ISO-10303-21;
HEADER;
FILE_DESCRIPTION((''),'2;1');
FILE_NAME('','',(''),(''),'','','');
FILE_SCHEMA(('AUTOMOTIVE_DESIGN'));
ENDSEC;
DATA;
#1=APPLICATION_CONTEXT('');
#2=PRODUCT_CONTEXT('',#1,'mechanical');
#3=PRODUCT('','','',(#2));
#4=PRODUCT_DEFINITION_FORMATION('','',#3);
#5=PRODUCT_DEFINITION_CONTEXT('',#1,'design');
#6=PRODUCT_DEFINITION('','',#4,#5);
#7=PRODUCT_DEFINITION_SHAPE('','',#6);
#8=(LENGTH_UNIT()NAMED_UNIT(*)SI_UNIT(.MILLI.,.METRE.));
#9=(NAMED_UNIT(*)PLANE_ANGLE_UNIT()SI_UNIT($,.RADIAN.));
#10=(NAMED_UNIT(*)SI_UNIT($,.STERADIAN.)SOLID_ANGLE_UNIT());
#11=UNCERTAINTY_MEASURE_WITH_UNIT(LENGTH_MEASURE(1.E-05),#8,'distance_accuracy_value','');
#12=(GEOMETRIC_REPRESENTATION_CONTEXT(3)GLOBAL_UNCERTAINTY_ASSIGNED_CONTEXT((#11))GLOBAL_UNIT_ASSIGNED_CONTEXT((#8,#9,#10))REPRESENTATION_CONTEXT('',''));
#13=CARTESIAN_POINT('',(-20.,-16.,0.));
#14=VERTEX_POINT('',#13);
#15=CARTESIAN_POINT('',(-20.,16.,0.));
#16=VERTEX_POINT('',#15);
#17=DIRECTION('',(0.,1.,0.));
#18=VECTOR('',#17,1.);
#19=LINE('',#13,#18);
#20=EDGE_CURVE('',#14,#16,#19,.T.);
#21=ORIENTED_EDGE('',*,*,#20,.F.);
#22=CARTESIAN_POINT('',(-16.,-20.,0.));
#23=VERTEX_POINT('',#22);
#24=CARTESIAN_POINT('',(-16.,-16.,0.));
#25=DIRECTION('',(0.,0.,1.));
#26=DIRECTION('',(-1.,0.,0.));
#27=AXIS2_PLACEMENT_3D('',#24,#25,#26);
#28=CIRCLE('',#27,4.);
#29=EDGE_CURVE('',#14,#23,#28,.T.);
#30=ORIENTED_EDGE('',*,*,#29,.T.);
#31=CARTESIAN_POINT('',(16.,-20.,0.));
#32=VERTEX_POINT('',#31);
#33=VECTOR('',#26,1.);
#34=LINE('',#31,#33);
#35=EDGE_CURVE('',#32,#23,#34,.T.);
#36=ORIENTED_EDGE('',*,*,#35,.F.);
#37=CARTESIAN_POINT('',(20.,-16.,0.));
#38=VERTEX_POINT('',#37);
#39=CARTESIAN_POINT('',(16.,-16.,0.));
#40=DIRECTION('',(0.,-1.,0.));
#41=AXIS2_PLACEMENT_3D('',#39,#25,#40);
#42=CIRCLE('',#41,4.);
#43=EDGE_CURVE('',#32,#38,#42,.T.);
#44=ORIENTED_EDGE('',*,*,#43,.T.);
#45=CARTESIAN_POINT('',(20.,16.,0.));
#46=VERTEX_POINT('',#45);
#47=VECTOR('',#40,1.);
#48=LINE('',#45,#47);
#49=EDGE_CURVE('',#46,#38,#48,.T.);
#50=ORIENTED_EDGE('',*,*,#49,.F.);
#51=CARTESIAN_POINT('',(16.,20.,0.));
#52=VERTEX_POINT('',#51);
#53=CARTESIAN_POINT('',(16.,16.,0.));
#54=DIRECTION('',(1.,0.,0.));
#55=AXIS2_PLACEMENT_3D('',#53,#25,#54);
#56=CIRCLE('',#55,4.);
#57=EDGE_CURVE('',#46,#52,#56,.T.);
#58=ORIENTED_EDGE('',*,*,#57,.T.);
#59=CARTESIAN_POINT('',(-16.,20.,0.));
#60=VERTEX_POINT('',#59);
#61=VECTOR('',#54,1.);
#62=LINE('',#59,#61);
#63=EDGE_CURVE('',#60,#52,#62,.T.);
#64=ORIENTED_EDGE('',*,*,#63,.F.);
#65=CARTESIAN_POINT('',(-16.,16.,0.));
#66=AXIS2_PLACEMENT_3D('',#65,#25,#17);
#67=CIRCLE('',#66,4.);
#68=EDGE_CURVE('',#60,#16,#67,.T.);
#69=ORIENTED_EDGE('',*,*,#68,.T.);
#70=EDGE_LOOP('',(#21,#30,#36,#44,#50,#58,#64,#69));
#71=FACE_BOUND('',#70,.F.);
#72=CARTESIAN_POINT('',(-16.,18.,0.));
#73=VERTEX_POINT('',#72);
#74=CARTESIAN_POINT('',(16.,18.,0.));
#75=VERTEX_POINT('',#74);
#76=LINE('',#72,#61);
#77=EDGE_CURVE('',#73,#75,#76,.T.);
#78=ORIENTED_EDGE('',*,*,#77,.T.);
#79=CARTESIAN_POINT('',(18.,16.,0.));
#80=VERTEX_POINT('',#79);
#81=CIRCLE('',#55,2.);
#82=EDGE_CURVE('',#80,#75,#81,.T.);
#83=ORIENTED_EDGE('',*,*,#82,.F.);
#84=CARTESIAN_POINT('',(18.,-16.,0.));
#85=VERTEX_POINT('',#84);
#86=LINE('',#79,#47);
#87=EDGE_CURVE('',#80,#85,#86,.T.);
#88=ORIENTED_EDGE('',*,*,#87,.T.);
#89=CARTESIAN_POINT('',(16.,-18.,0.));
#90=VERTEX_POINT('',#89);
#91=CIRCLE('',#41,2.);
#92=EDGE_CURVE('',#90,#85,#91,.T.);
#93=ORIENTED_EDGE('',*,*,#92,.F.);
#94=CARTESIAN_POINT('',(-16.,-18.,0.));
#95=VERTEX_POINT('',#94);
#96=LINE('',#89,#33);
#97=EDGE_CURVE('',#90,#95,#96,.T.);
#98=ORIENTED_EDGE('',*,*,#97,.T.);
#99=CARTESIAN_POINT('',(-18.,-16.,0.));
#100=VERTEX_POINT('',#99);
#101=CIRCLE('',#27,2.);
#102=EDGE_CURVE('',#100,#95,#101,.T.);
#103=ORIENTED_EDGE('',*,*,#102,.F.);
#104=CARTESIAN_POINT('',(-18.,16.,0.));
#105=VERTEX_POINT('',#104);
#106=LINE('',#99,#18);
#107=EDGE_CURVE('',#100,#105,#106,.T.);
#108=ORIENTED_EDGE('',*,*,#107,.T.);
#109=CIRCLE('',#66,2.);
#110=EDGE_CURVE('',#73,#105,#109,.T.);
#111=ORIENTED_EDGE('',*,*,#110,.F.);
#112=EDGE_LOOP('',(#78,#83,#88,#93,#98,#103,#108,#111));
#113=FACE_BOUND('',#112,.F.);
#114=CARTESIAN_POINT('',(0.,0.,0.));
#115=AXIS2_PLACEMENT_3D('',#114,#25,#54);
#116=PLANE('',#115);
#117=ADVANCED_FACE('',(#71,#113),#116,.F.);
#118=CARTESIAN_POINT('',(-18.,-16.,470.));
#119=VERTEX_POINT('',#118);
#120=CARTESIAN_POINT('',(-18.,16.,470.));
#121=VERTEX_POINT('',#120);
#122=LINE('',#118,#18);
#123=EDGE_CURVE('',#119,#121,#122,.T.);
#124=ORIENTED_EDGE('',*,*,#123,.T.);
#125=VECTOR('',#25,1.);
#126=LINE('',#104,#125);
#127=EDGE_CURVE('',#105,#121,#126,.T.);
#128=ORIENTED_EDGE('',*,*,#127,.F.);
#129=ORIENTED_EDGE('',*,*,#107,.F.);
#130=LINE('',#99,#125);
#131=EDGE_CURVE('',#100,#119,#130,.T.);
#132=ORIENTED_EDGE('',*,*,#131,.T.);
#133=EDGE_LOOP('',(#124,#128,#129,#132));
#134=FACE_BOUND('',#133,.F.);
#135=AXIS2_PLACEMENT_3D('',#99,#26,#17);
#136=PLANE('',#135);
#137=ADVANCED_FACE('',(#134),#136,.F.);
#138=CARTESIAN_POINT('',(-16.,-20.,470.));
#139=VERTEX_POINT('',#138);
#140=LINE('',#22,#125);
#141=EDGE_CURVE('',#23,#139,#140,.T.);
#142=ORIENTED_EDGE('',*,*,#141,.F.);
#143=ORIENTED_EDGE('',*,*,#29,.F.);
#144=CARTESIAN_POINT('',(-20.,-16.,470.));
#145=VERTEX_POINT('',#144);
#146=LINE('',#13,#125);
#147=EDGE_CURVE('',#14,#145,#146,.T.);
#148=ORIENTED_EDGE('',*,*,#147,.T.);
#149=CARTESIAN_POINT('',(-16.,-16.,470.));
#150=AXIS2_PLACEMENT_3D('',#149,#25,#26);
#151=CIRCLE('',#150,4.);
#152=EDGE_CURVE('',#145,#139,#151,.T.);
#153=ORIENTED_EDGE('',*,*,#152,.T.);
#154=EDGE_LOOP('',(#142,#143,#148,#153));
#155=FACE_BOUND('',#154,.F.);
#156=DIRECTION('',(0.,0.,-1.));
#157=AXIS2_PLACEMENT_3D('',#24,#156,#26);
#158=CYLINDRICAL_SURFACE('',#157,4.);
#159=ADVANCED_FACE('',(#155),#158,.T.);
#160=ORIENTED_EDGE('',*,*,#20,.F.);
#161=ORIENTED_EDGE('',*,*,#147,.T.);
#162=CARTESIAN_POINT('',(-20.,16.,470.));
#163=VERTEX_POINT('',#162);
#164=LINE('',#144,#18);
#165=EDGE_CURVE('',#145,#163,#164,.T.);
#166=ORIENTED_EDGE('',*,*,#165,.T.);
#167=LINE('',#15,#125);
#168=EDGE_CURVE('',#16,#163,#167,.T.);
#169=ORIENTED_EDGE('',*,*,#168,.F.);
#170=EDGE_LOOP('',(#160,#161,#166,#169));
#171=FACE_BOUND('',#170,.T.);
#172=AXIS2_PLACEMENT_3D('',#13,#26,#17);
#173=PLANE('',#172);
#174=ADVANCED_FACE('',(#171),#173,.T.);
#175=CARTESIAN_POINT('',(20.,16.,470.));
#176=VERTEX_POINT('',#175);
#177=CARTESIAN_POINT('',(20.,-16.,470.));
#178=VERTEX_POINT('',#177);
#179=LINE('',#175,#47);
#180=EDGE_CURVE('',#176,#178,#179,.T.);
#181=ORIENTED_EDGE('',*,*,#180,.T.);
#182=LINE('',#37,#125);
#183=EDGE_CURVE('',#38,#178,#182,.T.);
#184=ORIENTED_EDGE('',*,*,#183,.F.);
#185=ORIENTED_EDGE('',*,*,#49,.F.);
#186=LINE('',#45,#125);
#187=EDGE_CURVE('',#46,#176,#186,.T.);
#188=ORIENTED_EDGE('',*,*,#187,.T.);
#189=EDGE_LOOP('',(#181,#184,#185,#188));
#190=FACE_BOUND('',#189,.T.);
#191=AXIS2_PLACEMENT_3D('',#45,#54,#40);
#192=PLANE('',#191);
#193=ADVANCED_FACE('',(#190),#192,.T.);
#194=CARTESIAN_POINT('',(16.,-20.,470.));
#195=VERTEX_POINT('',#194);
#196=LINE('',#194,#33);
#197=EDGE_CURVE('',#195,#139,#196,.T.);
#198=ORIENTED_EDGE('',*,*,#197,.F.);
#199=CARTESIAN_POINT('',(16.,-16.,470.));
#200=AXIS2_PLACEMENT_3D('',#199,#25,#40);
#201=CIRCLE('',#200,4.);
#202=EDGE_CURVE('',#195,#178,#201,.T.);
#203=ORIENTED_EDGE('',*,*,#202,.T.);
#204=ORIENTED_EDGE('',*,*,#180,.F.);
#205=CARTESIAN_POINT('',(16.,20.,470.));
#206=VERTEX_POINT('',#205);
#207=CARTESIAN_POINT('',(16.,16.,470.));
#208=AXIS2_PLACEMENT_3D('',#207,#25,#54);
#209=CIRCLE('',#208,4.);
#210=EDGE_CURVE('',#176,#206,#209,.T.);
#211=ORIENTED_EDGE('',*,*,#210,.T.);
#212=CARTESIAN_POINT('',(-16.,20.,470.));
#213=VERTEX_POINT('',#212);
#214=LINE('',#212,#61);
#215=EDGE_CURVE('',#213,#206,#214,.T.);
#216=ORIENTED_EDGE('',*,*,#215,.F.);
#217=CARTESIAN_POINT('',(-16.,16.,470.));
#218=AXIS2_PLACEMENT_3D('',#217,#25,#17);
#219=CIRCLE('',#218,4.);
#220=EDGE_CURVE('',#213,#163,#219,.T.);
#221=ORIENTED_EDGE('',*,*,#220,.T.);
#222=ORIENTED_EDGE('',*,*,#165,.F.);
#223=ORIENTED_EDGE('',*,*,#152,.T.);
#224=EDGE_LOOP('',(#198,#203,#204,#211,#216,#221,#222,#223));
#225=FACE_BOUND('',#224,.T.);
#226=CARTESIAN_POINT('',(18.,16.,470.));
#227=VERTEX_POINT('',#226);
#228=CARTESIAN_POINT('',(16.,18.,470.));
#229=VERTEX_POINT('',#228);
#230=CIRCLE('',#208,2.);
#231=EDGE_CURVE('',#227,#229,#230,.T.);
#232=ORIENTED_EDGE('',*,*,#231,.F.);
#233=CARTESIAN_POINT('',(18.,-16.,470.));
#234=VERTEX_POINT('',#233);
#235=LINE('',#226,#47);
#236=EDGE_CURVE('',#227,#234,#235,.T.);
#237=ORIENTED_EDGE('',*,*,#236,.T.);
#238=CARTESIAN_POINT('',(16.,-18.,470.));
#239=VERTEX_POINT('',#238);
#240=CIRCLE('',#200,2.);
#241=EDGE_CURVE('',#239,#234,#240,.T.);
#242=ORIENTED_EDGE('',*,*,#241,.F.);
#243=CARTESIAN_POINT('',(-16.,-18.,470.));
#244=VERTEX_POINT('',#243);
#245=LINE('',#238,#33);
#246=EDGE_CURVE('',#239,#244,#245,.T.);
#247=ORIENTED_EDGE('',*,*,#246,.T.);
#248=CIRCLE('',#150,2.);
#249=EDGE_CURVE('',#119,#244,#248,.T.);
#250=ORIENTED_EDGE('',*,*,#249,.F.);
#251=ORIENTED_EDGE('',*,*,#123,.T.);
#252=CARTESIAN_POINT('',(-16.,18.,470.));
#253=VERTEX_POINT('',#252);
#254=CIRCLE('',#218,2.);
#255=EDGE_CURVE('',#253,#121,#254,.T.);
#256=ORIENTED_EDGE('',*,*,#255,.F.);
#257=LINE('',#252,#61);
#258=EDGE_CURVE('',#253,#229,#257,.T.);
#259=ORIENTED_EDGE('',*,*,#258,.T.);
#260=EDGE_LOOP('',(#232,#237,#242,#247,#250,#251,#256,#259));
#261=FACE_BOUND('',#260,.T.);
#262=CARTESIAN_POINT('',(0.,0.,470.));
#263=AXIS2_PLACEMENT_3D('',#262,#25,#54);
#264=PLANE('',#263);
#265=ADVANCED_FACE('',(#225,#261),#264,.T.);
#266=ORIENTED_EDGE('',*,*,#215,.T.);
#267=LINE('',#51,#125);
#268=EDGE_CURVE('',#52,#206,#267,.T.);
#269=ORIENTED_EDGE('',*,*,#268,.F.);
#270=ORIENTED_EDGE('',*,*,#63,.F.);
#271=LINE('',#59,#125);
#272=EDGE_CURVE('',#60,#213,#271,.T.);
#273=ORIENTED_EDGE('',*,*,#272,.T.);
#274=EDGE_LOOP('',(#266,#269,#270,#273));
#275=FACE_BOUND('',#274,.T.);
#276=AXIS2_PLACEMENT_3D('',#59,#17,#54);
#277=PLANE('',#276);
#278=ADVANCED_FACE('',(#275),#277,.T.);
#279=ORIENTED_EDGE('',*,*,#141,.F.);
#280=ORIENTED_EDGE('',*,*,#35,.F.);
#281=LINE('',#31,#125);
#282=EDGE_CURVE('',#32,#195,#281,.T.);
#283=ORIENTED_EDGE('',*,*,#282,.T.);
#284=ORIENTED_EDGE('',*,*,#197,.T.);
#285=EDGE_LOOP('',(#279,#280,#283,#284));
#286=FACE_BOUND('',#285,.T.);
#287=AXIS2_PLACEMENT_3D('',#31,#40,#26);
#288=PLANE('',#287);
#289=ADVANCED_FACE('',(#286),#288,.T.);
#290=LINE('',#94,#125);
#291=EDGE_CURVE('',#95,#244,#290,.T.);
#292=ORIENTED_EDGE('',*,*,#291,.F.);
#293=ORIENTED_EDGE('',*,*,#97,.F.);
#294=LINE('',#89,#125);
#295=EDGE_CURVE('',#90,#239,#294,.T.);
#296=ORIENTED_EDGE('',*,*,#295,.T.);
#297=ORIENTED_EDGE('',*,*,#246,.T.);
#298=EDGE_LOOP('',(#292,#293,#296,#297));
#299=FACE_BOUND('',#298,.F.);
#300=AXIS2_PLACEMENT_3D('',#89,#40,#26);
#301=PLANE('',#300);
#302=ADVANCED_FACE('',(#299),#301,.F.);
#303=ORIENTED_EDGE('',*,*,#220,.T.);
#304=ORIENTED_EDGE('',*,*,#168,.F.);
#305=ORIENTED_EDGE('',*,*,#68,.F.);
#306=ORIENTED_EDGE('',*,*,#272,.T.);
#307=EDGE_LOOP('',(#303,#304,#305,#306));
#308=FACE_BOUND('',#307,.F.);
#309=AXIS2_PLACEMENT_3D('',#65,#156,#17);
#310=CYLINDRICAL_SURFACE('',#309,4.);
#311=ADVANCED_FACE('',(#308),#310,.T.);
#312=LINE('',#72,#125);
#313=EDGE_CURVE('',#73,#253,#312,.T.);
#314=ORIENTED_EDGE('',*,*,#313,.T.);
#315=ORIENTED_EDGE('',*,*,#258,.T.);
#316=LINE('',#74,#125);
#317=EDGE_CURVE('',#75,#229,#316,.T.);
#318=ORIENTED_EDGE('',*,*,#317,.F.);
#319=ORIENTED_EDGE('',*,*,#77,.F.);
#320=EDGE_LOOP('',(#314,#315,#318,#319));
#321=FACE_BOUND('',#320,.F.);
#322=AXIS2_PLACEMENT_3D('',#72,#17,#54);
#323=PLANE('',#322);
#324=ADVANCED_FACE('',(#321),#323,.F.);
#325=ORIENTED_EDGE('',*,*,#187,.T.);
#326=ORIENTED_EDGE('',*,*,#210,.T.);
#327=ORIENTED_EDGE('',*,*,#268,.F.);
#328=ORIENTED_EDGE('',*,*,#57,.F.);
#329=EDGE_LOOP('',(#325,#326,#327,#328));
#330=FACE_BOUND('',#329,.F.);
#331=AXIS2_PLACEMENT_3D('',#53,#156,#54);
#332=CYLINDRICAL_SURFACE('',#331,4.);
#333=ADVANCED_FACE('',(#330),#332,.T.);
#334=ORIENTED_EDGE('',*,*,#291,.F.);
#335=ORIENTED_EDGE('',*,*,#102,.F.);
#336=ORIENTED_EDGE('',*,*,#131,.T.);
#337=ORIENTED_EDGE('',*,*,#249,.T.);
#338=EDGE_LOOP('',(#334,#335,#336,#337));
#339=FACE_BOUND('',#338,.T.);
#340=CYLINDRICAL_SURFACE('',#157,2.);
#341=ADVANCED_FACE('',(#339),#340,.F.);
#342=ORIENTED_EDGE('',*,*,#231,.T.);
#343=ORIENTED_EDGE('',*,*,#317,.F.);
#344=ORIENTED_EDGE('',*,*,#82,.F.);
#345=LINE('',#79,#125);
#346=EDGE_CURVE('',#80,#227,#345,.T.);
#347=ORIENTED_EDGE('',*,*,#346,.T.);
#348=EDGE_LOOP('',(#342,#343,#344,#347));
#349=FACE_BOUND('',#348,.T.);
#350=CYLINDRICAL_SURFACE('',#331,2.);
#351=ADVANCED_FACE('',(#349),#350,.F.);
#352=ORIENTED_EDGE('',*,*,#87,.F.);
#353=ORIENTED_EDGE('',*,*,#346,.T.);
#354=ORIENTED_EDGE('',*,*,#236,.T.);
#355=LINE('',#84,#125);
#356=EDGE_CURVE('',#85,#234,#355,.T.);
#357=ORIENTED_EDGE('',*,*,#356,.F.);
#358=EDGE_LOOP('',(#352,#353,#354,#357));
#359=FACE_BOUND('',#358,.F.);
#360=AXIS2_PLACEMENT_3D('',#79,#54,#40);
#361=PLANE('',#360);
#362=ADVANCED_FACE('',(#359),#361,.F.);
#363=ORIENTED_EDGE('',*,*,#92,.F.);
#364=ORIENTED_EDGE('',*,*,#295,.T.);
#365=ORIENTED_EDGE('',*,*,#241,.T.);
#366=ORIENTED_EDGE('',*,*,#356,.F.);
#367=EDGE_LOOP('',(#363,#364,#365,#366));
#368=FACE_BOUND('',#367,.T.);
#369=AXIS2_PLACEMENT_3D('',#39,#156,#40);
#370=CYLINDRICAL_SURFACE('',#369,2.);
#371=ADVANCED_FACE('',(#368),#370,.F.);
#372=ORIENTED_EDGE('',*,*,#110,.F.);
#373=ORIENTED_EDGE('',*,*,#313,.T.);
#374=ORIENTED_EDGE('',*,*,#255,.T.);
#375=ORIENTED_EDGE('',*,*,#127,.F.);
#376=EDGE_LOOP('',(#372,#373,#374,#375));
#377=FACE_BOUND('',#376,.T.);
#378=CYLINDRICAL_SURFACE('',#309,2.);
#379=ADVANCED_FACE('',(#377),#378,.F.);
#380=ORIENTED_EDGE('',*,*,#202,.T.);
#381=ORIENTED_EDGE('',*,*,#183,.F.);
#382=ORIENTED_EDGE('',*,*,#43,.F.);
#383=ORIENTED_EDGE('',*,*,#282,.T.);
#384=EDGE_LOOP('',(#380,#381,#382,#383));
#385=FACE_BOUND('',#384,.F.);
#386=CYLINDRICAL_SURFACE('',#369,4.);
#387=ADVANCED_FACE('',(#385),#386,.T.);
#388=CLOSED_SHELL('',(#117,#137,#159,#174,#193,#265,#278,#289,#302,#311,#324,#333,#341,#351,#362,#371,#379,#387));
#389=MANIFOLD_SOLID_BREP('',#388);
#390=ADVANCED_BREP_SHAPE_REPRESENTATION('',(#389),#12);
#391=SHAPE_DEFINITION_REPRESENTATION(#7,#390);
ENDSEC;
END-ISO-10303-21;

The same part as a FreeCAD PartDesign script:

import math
import FreeCAD as App
import Part
import Sketcher
from FreeCAD import Vector
Q = App.Units.Quantity

doc = App.newDocument("Part")
body = doc.addObject("PartDesign::Body", "Body")

sketch1 = body.newObject("Sketcher::SketchObject", "Sketch")
sketch1.AttachmentSupport = (doc.getObject("XY_Plane"), [""])
sketch1.MapMode = "FlatFace"
sketch1.addGeometry([
    Part.LineSegment(Vector(-20, 16, 0), Vector(-20, -16, 0)),
    Part.ArcOfCircle(Part.Circle(Vector(-16, -16, 0), Vector(0, 0, 1), 4), math.radians(180), math.radians(270)),
    Part.LineSegment(Vector(-16, -20, 0), Vector(16, -20, 0)),
    Part.ArcOfCircle(Part.Circle(Vector(16, -16, 0), Vector(0, 0, 1), 4), math.radians(-90), math.radians(0)),
    Part.LineSegment(Vector(20, -16, 0), Vector(20, 16, 0)),
    Part.ArcOfCircle(Part.Circle(Vector(16, 16, 0), Vector(0, 0, 1), 4), math.radians(0), math.radians(90)),
    Part.LineSegment(Vector(16, 20, 0), Vector(-16, 20, 0)),
    Part.ArcOfCircle(Part.Circle(Vector(-16, 16, 0), Vector(0, 0, 1), 4), math.radians(90), math.radians(180)),
    Part.ArcOfCircle(Part.Circle(Vector(-16, 16, 0), Vector(0, 0, 1), 2), math.radians(90), math.radians(180)),
    Part.LineSegment(Vector(-16, 18, 0), Vector(16, 18, 0)),
    Part.ArcOfCircle(Part.Circle(Vector(16, 16, 0), Vector(0, 0, 1), 2), math.radians(0), math.radians(90)),
    Part.LineSegment(Vector(18, 16, 0), Vector(18, -16, 0)),
    Part.ArcOfCircle(Part.Circle(Vector(16, -16, 0), Vector(0, 0, 1), 2), math.radians(-90), math.radians(0)),
    Part.LineSegment(Vector(16, -18, 0), Vector(-16, -18, 0)),
    Part.ArcOfCircle(Part.Circle(Vector(-16, -16, 0), Vector(0, 0, 1), 2), math.radians(180), math.radians(270)),
    Part.LineSegment(Vector(-18, -16, 0), Vector(-18, 16, 0)),
], False)
sketch1.addConstraint([
    Sketcher.Constraint("Tangent", 0, 2, 1, 1),
    Sketcher.Constraint("Tangent", 1, 2, 2, 1),
    Sketcher.Constraint("Tangent", 2, 2, 3, 1),
    Sketcher.Constraint("Tangent", 3, 2, 4, 1),
    Sketcher.Constraint("Tangent", 4, 2, 5, 1),
    Sketcher.Constraint("Tangent", 5, 2, 6, 1),
    Sketcher.Constraint("Tangent", 6, 2, 7, 1),
    Sketcher.Constraint("Tangent", 7, 2, 0, 1),
    Sketcher.Constraint("Tangent", 8, 1, 9, 1),
    Sketcher.Constraint("Tangent", 9, 2, 10, 2),
    Sketcher.Constraint("Tangent", 10, 1, 11, 1),
    Sketcher.Constraint("Tangent", 11, 2, 12, 2),
    Sketcher.Constraint("Tangent", 12, 1, 13, 1),
    Sketcher.Constraint("Tangent", 13, 2, 14, 2),
    Sketcher.Constraint("Tangent", 14, 1, 15, 1),
    Sketcher.Constraint("Tangent", 15, 2, 8, 2),
    Sketcher.Constraint("Vertical", 0),
    Sketcher.Constraint("Horizontal", 2),
    Sketcher.Constraint("Vertical", 4),
    Sketcher.Constraint("Horizontal", 6),
    Sketcher.Constraint("Horizontal", 9),
    Sketcher.Constraint("Vertical", 11),
    Sketcher.Constraint("Horizontal", 13),
    Sketcher.Constraint("Vertical", 15),
    Sketcher.Constraint("Coincident", 8, 3, 7, 3),
    Sketcher.Constraint("Coincident", 10, 3, 5, 3),
    Sketcher.Constraint("Coincident", 12, 3, 3, 3),
    Sketcher.Constraint("Equal", 1, 3),
    Sketcher.Constraint("Equal", 3, 5),
    Sketcher.Constraint("Equal", 5, 7),
    Sketcher.Constraint("Equal", 12, 14),
    Sketcher.Constraint("Symmetric", 1, 3, 5, 3, -1, 1),
    Sketcher.Constraint("Equal", 13, 0),
    Sketcher.Constraint("Radius", 1, Q("4 mm")),
    Sketcher.Constraint("Radius", 8, Q("2 mm")),
    Sketcher.Constraint("DistanceX", 0, 2, -1, 1, Q("20 mm")),
])
pad1 = body.newObject("PartDesign::Pad", "Pad")
pad1.Profile = sketch1
pad1.Length = 470

doc.recompute()
